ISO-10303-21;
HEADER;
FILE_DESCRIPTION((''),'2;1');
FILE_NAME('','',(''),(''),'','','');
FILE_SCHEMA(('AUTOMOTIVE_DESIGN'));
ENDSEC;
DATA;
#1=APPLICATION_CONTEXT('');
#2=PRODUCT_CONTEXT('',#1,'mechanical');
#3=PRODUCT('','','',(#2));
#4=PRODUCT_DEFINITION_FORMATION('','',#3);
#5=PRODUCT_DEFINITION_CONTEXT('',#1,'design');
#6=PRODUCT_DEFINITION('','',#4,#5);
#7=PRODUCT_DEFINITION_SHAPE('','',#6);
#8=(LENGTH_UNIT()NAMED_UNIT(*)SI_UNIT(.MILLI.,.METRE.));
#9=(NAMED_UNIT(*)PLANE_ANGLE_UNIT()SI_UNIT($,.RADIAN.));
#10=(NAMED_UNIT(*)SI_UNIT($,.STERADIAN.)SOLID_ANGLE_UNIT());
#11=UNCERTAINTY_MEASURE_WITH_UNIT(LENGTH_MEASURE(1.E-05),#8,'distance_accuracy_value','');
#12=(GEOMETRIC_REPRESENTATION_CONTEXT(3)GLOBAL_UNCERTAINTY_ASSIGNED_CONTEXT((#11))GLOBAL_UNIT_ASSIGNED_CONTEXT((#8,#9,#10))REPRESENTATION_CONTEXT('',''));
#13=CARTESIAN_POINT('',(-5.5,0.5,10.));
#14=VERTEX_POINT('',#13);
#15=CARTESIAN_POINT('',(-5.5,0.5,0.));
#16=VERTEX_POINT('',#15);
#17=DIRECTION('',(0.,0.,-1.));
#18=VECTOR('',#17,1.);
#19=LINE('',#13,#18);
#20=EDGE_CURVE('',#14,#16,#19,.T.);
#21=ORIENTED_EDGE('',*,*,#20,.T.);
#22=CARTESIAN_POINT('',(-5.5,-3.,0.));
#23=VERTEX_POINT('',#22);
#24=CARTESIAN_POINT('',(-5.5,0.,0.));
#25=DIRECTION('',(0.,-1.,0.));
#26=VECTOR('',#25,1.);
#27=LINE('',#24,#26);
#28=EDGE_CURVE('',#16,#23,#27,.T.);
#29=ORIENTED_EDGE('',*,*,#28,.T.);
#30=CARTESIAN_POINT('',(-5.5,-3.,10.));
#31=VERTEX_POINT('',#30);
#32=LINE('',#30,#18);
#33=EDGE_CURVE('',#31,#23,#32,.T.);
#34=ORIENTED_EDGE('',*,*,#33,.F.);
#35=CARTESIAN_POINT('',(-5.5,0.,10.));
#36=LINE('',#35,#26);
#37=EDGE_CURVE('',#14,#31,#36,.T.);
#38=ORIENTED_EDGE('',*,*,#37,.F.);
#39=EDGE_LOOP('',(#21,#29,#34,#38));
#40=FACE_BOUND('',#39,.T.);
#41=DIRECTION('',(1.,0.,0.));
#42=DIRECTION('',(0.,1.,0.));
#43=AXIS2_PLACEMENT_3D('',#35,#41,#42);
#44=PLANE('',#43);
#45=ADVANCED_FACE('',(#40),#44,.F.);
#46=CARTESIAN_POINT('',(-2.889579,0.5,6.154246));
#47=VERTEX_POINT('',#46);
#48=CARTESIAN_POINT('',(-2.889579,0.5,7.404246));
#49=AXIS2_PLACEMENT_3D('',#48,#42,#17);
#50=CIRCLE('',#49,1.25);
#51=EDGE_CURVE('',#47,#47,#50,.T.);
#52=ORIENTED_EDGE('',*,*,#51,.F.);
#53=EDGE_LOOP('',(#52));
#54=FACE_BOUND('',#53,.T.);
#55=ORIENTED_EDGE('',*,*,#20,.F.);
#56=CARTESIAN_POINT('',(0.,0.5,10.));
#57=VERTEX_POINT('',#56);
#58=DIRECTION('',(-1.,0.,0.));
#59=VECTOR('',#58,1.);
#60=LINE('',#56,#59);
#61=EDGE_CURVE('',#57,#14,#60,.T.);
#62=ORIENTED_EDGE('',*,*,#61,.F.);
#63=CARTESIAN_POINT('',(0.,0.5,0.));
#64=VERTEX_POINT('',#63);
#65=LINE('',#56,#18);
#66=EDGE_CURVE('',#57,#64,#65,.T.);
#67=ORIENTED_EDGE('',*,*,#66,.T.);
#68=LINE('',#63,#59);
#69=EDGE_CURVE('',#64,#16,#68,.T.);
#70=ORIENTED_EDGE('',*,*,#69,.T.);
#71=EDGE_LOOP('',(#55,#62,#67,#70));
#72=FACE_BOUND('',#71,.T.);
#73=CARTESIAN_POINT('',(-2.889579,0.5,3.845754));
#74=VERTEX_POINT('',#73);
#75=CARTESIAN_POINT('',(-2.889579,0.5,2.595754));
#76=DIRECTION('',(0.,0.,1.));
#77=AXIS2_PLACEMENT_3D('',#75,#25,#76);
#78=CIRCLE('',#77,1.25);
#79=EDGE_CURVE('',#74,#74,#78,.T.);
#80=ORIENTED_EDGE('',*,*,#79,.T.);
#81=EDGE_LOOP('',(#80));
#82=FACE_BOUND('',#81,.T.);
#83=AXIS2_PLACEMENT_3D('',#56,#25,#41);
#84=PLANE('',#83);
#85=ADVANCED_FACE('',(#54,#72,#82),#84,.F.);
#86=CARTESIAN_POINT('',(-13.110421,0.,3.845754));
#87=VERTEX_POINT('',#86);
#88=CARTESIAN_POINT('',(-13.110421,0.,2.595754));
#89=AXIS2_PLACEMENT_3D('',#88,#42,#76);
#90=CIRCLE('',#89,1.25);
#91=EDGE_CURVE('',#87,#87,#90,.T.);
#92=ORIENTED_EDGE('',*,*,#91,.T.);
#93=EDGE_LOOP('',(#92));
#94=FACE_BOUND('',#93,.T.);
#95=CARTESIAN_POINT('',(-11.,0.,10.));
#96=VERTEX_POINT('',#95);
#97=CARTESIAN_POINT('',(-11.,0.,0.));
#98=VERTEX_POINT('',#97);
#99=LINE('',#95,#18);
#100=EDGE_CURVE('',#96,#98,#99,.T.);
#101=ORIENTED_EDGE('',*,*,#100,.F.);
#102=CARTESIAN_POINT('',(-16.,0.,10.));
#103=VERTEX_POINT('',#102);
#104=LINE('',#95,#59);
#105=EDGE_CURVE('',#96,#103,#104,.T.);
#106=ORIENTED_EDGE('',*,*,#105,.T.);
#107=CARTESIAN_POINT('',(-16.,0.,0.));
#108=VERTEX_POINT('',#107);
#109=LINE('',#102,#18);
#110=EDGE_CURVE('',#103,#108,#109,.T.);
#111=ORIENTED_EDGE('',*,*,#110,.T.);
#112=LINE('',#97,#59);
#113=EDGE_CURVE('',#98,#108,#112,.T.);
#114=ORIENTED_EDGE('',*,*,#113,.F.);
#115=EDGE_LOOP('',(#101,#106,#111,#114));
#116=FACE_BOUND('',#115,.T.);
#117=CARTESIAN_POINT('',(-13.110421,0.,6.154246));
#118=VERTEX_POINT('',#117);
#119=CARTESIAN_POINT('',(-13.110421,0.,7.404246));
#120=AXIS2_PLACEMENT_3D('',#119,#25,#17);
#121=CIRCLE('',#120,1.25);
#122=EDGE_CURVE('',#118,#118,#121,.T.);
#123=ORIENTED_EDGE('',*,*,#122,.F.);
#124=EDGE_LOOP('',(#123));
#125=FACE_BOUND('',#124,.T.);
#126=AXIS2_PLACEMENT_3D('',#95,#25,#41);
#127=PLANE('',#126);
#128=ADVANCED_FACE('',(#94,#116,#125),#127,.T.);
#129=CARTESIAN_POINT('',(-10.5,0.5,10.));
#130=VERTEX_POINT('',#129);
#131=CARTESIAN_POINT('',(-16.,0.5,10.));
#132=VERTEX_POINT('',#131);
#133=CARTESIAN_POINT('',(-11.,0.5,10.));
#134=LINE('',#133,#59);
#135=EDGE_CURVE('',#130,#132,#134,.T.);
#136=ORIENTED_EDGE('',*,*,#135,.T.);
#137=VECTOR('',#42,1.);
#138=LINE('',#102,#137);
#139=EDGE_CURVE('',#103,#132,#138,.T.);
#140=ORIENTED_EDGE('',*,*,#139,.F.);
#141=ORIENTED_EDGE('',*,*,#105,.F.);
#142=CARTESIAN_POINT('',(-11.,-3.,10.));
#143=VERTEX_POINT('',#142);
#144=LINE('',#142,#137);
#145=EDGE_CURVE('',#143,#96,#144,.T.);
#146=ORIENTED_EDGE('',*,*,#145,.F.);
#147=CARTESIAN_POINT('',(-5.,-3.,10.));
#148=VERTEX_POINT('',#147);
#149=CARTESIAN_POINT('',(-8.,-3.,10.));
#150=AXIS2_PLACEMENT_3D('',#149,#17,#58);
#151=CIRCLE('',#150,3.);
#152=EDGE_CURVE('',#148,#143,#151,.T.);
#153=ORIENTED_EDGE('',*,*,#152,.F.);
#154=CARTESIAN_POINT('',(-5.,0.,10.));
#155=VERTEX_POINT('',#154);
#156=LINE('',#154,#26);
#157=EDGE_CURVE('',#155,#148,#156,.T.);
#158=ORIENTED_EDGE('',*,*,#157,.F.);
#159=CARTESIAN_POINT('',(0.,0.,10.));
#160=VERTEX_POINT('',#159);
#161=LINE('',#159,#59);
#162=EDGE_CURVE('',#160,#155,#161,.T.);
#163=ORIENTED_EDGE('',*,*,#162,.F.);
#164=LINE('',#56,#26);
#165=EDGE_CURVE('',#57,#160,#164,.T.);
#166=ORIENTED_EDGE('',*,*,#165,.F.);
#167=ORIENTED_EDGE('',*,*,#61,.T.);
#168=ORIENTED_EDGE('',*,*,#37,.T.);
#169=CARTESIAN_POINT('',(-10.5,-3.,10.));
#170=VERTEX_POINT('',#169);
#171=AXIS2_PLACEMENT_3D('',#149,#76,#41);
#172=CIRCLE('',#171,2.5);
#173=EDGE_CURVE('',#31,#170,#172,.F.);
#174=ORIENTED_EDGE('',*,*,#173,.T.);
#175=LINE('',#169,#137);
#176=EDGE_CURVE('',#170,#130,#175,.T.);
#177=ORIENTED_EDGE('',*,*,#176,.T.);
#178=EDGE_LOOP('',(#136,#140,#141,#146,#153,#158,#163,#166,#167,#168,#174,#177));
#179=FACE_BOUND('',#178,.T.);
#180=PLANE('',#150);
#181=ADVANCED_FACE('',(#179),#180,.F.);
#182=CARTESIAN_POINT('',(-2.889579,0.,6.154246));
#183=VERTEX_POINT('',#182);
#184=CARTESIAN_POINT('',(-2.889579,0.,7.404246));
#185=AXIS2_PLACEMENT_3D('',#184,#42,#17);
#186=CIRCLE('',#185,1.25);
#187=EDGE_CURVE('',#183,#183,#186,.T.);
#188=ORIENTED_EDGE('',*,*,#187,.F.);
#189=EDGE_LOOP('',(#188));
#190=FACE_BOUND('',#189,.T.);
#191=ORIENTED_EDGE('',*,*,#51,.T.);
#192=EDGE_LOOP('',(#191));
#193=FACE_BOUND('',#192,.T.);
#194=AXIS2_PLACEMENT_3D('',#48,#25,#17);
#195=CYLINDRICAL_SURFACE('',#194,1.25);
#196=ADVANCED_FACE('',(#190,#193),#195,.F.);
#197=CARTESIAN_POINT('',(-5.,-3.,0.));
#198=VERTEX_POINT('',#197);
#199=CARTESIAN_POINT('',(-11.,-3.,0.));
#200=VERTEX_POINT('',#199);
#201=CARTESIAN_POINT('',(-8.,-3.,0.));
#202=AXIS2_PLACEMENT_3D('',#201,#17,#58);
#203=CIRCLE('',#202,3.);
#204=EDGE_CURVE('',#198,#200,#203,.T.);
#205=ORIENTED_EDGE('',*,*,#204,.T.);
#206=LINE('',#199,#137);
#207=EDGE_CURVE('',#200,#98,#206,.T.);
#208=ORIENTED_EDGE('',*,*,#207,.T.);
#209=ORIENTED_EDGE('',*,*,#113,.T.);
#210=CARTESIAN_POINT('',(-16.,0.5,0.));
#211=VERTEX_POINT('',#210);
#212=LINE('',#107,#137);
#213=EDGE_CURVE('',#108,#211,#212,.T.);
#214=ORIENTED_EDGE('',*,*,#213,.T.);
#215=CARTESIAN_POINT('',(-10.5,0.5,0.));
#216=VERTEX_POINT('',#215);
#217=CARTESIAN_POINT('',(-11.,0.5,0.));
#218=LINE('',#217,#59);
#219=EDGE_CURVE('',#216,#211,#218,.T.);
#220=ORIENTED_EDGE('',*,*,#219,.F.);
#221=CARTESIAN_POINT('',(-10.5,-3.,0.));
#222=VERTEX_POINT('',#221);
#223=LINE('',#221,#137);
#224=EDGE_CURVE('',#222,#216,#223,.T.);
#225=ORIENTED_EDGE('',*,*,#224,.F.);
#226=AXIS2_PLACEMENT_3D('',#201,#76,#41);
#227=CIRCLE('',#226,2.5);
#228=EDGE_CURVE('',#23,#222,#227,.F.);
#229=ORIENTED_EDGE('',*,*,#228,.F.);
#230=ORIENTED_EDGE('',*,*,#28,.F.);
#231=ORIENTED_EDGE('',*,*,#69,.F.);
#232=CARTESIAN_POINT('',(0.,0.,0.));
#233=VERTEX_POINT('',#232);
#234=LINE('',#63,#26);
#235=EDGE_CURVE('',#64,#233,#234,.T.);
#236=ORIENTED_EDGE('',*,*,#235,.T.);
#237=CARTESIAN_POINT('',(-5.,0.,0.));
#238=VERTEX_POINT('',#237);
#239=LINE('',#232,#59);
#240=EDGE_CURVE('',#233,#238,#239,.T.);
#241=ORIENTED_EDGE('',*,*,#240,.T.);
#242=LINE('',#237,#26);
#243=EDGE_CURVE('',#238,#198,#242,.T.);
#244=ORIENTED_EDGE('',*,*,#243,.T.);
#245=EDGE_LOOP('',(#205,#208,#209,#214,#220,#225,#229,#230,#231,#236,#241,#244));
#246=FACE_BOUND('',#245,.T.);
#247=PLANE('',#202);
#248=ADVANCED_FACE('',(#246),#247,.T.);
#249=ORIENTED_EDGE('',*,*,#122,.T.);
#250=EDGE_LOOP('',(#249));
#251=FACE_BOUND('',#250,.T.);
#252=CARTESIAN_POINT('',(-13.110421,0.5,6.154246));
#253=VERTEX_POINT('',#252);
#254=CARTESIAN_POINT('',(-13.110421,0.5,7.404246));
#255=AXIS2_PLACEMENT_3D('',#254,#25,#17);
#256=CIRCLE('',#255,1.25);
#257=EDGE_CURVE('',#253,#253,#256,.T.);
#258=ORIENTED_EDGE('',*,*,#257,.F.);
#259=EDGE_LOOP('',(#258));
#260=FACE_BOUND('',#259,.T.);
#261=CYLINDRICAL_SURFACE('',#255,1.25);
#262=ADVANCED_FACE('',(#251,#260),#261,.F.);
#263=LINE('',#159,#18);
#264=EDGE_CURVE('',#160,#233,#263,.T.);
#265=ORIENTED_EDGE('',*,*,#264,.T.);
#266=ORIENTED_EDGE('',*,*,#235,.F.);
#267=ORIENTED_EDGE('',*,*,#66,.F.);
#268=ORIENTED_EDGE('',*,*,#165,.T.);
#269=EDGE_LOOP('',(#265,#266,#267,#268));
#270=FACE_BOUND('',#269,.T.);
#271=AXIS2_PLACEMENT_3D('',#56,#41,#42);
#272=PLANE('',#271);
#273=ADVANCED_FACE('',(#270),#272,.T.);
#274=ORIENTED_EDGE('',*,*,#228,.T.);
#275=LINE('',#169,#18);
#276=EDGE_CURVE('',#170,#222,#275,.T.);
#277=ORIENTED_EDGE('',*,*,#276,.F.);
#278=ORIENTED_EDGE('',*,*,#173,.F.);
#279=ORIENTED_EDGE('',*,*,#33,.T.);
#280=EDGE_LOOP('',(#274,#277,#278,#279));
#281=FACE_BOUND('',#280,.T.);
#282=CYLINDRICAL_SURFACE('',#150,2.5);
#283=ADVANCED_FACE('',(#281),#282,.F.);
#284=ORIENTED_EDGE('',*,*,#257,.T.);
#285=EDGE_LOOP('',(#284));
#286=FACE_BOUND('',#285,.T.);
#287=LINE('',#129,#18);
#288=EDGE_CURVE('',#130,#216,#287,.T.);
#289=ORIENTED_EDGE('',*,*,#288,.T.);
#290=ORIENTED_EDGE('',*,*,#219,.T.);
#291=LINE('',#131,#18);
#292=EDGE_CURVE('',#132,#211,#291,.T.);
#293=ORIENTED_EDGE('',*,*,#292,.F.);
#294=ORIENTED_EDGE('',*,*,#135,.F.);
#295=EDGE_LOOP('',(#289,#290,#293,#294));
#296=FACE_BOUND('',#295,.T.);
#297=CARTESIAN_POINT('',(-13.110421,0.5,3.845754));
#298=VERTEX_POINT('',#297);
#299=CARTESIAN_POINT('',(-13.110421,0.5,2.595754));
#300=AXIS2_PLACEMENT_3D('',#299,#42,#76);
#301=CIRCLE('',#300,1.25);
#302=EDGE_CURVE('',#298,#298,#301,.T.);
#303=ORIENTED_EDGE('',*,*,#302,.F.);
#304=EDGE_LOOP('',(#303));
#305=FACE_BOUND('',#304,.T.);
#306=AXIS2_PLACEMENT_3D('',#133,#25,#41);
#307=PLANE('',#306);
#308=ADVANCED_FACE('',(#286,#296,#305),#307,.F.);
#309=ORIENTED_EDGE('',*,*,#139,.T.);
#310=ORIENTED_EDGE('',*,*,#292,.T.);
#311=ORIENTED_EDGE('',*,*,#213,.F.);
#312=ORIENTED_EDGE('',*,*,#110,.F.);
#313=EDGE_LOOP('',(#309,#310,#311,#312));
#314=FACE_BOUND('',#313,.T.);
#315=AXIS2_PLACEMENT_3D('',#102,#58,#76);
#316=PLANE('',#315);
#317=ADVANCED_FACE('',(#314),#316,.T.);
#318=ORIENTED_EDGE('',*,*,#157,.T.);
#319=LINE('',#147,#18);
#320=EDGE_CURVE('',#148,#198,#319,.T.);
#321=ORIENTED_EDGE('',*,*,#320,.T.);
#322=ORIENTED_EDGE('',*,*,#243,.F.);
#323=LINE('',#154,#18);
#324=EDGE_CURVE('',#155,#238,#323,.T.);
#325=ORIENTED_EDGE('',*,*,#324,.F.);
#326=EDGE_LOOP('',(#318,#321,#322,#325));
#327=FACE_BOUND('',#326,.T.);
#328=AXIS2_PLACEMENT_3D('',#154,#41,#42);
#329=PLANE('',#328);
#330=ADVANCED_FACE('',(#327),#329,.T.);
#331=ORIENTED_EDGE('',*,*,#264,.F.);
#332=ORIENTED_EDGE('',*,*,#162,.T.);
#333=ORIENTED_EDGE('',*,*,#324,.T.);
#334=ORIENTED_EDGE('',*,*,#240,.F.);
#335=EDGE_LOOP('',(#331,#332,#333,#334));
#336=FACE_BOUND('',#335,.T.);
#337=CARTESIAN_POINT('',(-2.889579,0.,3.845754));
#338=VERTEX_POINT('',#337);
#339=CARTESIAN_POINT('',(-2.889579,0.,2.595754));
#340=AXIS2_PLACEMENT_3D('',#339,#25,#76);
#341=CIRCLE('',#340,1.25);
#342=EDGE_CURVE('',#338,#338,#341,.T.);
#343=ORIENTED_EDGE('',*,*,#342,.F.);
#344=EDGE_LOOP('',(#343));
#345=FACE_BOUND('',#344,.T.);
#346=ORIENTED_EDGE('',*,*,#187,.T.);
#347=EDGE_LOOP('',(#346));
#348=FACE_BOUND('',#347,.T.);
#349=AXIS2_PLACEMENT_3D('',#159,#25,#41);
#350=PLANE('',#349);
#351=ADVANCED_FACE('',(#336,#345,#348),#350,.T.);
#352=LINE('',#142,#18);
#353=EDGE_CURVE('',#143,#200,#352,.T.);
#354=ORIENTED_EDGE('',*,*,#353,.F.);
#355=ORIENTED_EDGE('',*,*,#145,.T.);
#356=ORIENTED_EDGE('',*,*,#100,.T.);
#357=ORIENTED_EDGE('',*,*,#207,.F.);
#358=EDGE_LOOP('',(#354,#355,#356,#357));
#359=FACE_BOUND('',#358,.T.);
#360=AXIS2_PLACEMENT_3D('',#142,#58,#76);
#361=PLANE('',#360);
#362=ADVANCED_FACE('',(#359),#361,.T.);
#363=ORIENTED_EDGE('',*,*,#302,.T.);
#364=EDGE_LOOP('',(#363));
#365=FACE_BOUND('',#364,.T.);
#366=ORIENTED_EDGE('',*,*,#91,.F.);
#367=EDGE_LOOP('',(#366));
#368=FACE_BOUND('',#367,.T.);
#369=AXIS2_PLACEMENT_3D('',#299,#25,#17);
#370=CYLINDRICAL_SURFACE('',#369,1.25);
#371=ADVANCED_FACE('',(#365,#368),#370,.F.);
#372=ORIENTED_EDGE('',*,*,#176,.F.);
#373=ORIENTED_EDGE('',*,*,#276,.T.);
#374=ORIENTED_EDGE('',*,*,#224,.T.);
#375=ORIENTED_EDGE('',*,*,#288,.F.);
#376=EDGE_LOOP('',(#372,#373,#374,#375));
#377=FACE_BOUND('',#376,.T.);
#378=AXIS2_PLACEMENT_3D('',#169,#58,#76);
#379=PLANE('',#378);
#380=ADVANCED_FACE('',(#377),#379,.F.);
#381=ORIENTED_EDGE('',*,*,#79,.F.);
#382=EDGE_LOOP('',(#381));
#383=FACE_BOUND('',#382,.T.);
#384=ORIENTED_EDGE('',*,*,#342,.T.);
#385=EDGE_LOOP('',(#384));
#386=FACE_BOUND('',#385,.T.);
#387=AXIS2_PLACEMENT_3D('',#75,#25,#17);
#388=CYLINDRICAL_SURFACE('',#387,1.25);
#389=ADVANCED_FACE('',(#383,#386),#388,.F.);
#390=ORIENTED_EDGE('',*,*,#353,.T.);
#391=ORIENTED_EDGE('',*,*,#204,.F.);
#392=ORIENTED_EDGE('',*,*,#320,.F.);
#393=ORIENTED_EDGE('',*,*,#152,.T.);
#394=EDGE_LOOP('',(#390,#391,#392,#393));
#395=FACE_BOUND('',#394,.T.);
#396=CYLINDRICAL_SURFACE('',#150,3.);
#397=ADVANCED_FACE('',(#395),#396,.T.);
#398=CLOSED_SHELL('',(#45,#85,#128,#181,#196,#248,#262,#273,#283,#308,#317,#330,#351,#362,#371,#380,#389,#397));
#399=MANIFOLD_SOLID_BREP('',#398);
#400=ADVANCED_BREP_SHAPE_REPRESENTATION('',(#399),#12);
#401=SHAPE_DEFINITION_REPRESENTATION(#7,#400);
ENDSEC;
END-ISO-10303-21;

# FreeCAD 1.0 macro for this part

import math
import FreeCAD as App
import Part
import Sketcher
Q = App.Units.Quantity

doc = App.newDocument("Part")
params = doc.addObject("Spreadsheet::Sheet", "Params")
for row, (alias, value) in enumerate([
    ("sketch1_radius", "3 mm"),
    ("sketch1_radius2", "2.5 mm"),
    ("sketch1_width", "5 mm"),
    ("sketch1_height", "3 mm"),
    ("sketch1_height2", "0.5 mm"),
    ("pad1_length", "10 mm"),
    ("sketch2_diameter", "2.5 mm"),
    ("sketch3_diameter", "2.5 mm"),
], start=1):
    params.set(f"A{row}", alias)
    params.set(f"B{row}", "=" + value)
    params.setAlias(f"B{row}", alias)

body = doc.addObject("PartDesign::Body", "Body")

sketch1 = body.newObject("Sketcher::SketchObject", "Sketch")
sketch1.AttachmentSupport = (doc.getObject("XY_Plane"), [""])
sketch1.MapMode = "FlatFace"
sketch1.addGeometry(Part.LineSegment(App.Vector(-5, 0, 0), App.Vector(0, 0, 0)), False)
sketch1.addGeometry(Part.LineSegment(App.Vector(0, 0, 0), App.Vector(0, 0.5, 0)), False)
sketch1.addGeometry(Part.LineSegment(App.Vector(0, 0.5, 0), App.Vector(-5.5, 0.5, 0)), False)
sketch1.addGeometry(Part.LineSegment(App.Vector(-5.5, 0.5, 0), App.Vector(-5.5, -3, 0)), False)
sketch1.addGeometry(Part.ArcOfCircle(Part.Circle(App.Vector(-8, -3, 0), App.Vector(0, 0, 1), 2.5), math.radians(180), math.radians(360)), False)
sketch1.addGeometry(Part.LineSegment(App.Vector(-10.5, -3, 0), App.Vector(-10.5, 0.5, 0)), False)
sketch1.addGeometry(Part.LineSegment(App.Vector(-10.5, 0.5, 0), App.Vector(-16, 0.5, 0)), False)
sketch1.addGeometry(Part.LineSegment(App.Vector(-16, 0.5, 0), App.Vector(-16, 0, 0)), False)
sketch1.addGeometry(Part.LineSegment(App.Vector(-16, 0, 0), App.Vector(-11, 0, 0)), False)
sketch1.addGeometry(Part.LineSegment(App.Vector(-11, 0, 0), App.Vector(-11, -3, 0)), False)
sketch1.addGeometry(Part.ArcOfCircle(Part.Circle(App.Vector(-8, -3, 0), App.Vector(0, 0, 1), 3), math.radians(180), math.radians(360)), False)
sketch1.addGeometry(Part.LineSegment(App.Vector(-5, -3, 0), App.Vector(-5, 0, 0)), False)
sketch1.addConstraint(Sketcher.Constraint("Coincident", 0, 2, 1, 1))
sketch1.addConstraint(Sketcher.Constraint("Coincident", 1, 2, 2, 1))
sketch1.addConstraint(Sketcher.Constraint("Coincident", 2, 2, 3, 1))
sketch1.addConstraint(Sketcher.Constraint("Tangent", 3, 2, 4, 2))
sketch1.addConstraint(Sketcher.Constraint("Tangent", 4, 1, 5, 1))
sketch1.addConstraint(Sketcher.Constraint("Coincident", 5, 2, 6, 1))
sketch1.addConstraint(Sketcher.Constraint("Coincident", 6, 2, 7, 1))
sketch1.addConstraint(Sketcher.Constraint("Coincident", 7, 2, 8, 1))
sketch1.addConstraint(Sketcher.Constraint("Coincident", 8, 2, 9, 1))
sketch1.addConstraint(Sketcher.Constraint("Tangent", 9, 2, 10, 1))
sketch1.addConstraint(Sketcher.Constraint("Tangent", 10, 2, 11, 1))
sketch1.addConstraint(Sketcher.Constraint("Coincident", 11, 2, 0, 1))
sketch1.addConstraint(Sketcher.Constraint("Horizontal", 0))
sketch1.addConstraint(Sketcher.Constraint("Vertical", 1))
sketch1.addConstraint(Sketcher.Constraint("Horizontal", 2))
sketch1.addConstraint(Sketcher.Constraint("Vertical", 3))
sketch1.addConstraint(Sketcher.Constraint("Vertical", 5))
sketch1.addConstraint(Sketcher.Constraint("Horizontal", 6))
sketch1.addConstraint(Sketcher.Constraint("Vertical", 7))
sketch1.addConstraint(Sketcher.Constraint("Horizontal", 8))
sketch1.addConstraint(Sketcher.Constraint("Vertical", 9))
sketch1.addConstraint(Sketcher.Constraint("Vertical", 11))
sketch1.addConstraint(Sketcher.Constraint("Coincident", 0, 2, -1, 1))
sketch1.addConstraint(Sketcher.Constraint("Coincident", 10, 3, 4, 3))
sketch1.addConstraint(Sketcher.Constraint("PointOnObject", 7, 2, -1))
sketch1.addConstraint(Sketcher.Constraint("Horizontal", 2, 2, 5, 2))
sketch1.addConstraint(Sketcher.Constraint("Equal", 2, 6))
sketch1.addConstraint(Sketcher.Constraint("Radius", 10, Q("3 mm")))
sketch1.addConstraint(Sketcher.Constraint("Radius", 4, Q("2.5 mm")))
sketch1.addConstraint(Sketcher.Constraint("DistanceX", 0, 1, 0, 2, Q("5 mm")))
sketch1.addConstraint(Sketcher.Constraint("DistanceY", 9, 2, 9, 1, Q("3 mm")))
sketch1.addConstraint(Sketcher.Constraint("DistanceY", 1, 1, 1, 2, Q("0.5 mm")))
sketch1.setExpression("Constraints[27]", "Params.sketch1_radius")
sketch1.setExpression("Constraints[28]", "Params.sketch1_radius2")
sketch1.setExpression("Constraints[29]", "Params.sketch1_width")
sketch1.setExpression("Constraints[30]", "Params.sketch1_height")
sketch1.setExpression("Constraints[31]", "Params.sketch1_height2")
pad1 = body.newObject("PartDesign::Pad", "Pad")
pad1.Profile = sketch1
pad1.setExpression("Length", "Params.pad1_length")

sketch2 = body.newObject("Sketcher::SketchObject", "Sketch001")
sketch2.AttachmentSupport = (doc.getObject("XZ_Plane"), [""])
sketch2.MapMode = "FlatFace"
sketch2.addGeometry(Part.Circle(App.Vector(-13.1, 2.6, 0), App.Vector(0, 0, 1), 1.2), False)
sketch2.addConstraint(Sketcher.Constraint("Diameter", 0, Q("2.5 mm")))
sketch2.addConstraint(Sketcher.Constraint("DistanceX", 0, 3, -1, 1, Q("13.110421 mm")))
sketch2.addConstraint(Sketcher.Constraint("DistanceY", -1, 1, 0, 3, Q("2.595754 mm")))
sketch2.setExpression("Constraints[0]", "Params.sketch2_diameter")
pocket1 = body.newObject("PartDesign::Pocket", "Pocket")
pocket1.Profile = sketch2
pocket1.Type = "ThroughAll"
doc.recompute()

datumplane = body.newObject("PartDesign::Plane", "DatumPlane")
datumplane.AttachmentSupport = (doc.getObject("XY_Plane"), [""])
datumplane.MapMode = "FlatFace"
datumplane.AttachmentOffset = App.Placement(App.Vector(0, 0, 5), App.Rotation())
mirrored = body.newObject("PartDesign::Mirrored", "Mirrored")
mirrored.Originals = [pocket1]
mirrored.MirrorPlane = (datumplane, [""])
body.Tip = mirrored
doc.recompute()

datumplane2 = body.newObject("PartDesign::Plane", "DatumPlane001")
datumplane2.AttachmentSupport = (doc.getObject("YZ_Plane"), [""])
datumplane2.MapMode = "FlatFace"
datumplane2.AttachmentOffset = App.Placement(App.Vector(0, 0, -8), App.Rotation())
mirrored2 = body.newObject("PartDesign::Mirrored", "Mirrored001")
mirrored2.Originals = [pocket1]
mirrored2.MirrorPlane = (datumplane2, [""])
body.Tip = mirrored2

sketch3 = body.newObject("Sketcher::SketchObject", "Sketch002")
sketch3.AttachmentSupport = (doc.getObject("XZ_Plane"), [""])
sketch3.MapMode = "FlatFace"
sketch3.addGeometry(Part.Circle(App.Vector(-2.9, 7.4, 0), App.Vector(0, 0, 1), 1.2), False)
sketch3.addConstraint(Sketcher.Constraint("Diameter", 0, Q("2.5 mm")))
sketch3.addConstraint(Sketcher.Constraint("DistanceX", 0, 3, -1, 1, Q("2.889579 mm")))
sketch3.addConstraint(Sketcher.Constraint("DistanceY", -1, 1, 0, 3, Q("7.404246 mm")))
sketch3.setExpression("Constraints[0]", "Params.sketch3_diameter")
pocket2 = body.newObject("PartDesign::Pocket", "Pocket001")
pocket2.Profile = sketch3
pocket2.Type = "ThroughAll"

doc.recompute()
